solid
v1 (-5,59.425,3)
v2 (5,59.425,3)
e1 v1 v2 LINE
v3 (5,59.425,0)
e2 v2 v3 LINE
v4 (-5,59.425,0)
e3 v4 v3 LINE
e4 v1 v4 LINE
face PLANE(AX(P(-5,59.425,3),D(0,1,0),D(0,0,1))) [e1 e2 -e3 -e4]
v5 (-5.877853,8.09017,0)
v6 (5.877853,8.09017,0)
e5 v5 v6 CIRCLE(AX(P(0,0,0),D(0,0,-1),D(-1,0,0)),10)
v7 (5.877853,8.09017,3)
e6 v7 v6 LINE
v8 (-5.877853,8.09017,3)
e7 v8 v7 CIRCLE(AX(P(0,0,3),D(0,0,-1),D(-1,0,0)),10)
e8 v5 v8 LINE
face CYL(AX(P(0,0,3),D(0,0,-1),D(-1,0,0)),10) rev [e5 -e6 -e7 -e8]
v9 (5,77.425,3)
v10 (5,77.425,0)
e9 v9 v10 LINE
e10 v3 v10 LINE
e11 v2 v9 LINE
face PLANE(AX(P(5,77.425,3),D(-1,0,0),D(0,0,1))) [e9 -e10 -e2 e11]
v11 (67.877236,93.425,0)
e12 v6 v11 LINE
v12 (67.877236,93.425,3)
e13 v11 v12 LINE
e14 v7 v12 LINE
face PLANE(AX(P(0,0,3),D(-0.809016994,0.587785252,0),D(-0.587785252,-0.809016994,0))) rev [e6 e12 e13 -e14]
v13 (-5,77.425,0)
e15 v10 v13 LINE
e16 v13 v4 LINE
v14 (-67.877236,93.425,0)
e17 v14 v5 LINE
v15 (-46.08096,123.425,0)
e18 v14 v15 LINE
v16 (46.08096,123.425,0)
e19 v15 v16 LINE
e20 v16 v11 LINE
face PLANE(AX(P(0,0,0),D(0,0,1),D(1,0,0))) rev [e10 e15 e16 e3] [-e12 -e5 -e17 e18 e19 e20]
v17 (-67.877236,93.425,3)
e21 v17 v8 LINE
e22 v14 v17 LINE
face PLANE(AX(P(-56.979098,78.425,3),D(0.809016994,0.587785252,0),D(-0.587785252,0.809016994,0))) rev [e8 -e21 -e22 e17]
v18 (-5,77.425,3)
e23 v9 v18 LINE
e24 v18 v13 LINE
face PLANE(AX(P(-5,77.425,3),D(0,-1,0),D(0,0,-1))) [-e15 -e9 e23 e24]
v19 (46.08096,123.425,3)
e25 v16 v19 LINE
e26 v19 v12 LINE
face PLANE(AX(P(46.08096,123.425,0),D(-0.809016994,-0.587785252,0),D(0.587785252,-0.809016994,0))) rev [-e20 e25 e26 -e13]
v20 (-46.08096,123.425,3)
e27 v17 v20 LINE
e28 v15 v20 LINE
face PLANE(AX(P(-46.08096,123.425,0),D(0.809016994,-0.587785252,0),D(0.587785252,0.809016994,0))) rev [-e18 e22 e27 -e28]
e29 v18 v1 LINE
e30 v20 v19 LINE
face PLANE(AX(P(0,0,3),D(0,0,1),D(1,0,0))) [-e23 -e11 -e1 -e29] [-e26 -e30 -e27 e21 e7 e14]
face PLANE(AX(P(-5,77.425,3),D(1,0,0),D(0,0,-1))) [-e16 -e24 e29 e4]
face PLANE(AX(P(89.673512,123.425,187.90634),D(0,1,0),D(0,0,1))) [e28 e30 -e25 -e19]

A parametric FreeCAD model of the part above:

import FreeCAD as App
import Part
import Sketcher
from FreeCAD import Vector
Q = App.Units.Quantity


def add_polygon(sketch, points):
    """Adds a closed chain of lines whose ends are joined by coincident constraints."""
    first, n = sketch.GeometryCount, len(points)
    for a, b in zip(points, points[1:] + points[:1]):
        sketch.addGeometry(Part.LineSegment(App.Vector(*a, 0), App.Vector(*b, 0)), False)
    for i in range(n):
        sketch.addConstraint(Sketcher.Constraint("Coincident", first + i, 2, first + (i + 1) % n, 1))

doc = App.newDocument("Part")
params = doc.addObject("Spreadsheet::Sheet", "Params")
for row, (alias, value) in enumerate([
    ("sketch1_width", "10 mm"),
    ("sketch1_height", "18 mm"),
    ("pad1_length", "3 mm"),
    ("pad2_length", "3 mm"),
    ("sketch4_diameter", "20 mm"),
], start=1):
    params.set(f"A{row}", alias)
    params.set(f"B{row}", "=" + value)
    params.setAlias(f"B{row}", alias)

body = doc.addObject("PartDesign::Body", "Body")

sketch1 = body.newObject("Sketcher::SketchObject", "Sketch")
sketch1.AttachmentSupport = (doc.getObject("XY_Plane"), [""])
sketch1.MapMode = "FlatFace"
add_polygon(sketch1, [(0, 0), (56.979098, 78.425), (-56.979098, 78.425)])
add_polygon(sketch1, [(5, 59.425), (-5, 59.425), (-5, 77.425), (5, 77.425)])
sketch1.addConstraint([
    Sketcher.Constraint("Horizontal", 1),
    Sketcher.Constraint("Horizontal", 3),
    Sketcher.Constraint("Vertical", 4),
    Sketcher.Constraint("Horizontal", 5),
    Sketcher.Constraint("Vertical", 6),
    Sketcher.Constraint("Coincident", 2, 2, -1, 1),
    Sketcher.Constraint("Equal", 0, 2),
    Sketcher.Constraint("DistanceX", 3, 2, 3, 1, Q("10 mm")),
    Sketcher.Constraint("DistanceY", 4, 1, 4, 2, Q("18 mm")),
    Sketcher.Constraint("Angle", 0, Q("54 deg")),
    Sketcher.Constraint("DistanceX", 3, 2, -1, 1, Q("5 mm")),
    Sketcher.Constraint("DistanceY", 3, 2, 1, 2, Q("19 mm")),
    Sketcher.Constraint("DistanceY", -1, 1, 0, 2, Q("78.425 mm")),
])
sketch1.setExpression("Constraints[14]", "Params.sketch1_width")
sketch1.setExpression("Constraints[15]", "Params.sketch1_height")
pad1 = body.newObject("PartDesign::Pad", "Pad")
pad1.Profile = sketch1
pad1.setExpression("Length", "Params.pad1_length")

sketch2 = body.newObject("Sketcher::SketchObject", "Sketch001")
sketch2.AttachmentSupport = (doc.getObject("XY_Plane"), [""])
sketch2.MapMode = "FlatFace"
add_polygon(sketch2, [(89.673512, 123.425), (56.979098, 78.425), (-56.979098, 78.425), (-89.673512, 123.425)])
sketch2.addConstraint([
    Sketcher.Constraint("Horizontal", 1),
    Sketcher.Constraint("Horizontal", 3),
    Sketcher.Constraint("Equal", 0, 2),
    Sketcher.Constraint("Angle", 0, Q("-126 deg")),
    Sketcher.Constraint("DistanceY", 1, 2, 2, 2, Q("45 mm")),
    Sketcher.Constraint("DistanceY", -1, 1, 0, 2, Q("78.425 mm")),
    Sketcher.Constraint("DistanceX", 1, 2, 1, 1, Q("113.958196 mm")),
    Sketcher.Constraint("DistanceX", 2, 2, -1, 1, Q("89.673512 mm")),
])
pad2 = body.newObject("PartDesign::Pad", "Pad001")
pad2.Profile = sketch2
pad2.setExpression("Length", "Params.pad2_length")

sketch3 = body.newObject("Sketcher::SketchObject", "Sketch002")
sketch3.AttachmentSupport = (doc.getObject("XY_Plane"), [""])
sketch3.MapMode = "FlatFace"
sketch3.AttachmentOffset = App.Placement(Vector(0, 0, 3), App.Rotation())
add_polygon(sketch3, [(-46.08096, 123.425), (-89.673512, 123.425), (-67.877236, 93.425)])
add_polygon(sketch3, [(89.673512, 123.425), (46.08096, 123.425), (67.877236, 93.425)])
sketch3.addConstraint([
    Sketcher.Constraint("Horizontal", 0),
    Sketcher.Constraint("Horizontal", 3),
    Sketcher.Constraint("Symmetric", 2, 2, 3, 2, -2),
    Sketcher.Constraint("Symmetric", 1, 2, 4, 2, -2),
    Sketcher.Constraint("Parallel", 1, 4),
    Sketcher.Constraint("Parallel", 2, 5),
    Sketcher.Constraint("Angle", 1, Q("-54 deg")),
    Sketcher.Constraint("DistanceY", 1, 2, 0, 2, Q("30 mm")),
    Sketcher.Constraint("DistanceY", -1, 1, 0, 2, Q("123.425 mm")),
    Sketcher.Constraint("DistanceX", 0, 2, -1, 1, Q("89.673512 mm")),
])
pocket1 = body.newObject("PartDesign::Pocket", "Pocket")
pocket1.Profile = sketch3
pocket1.Type = "ThroughAll"

sketch4 = body.newObject("Sketcher::SketchObject", "Sketch003")
sketch4.AttachmentSupport = (doc.getObject("XY_Plane"), [""])
sketch4.MapMode = "FlatFace"
sketch4.addGeometry(Part.Circle(Vector(0, 0, 0), Vector(0, 0, 1), 10), False)
sketch4.addConstraint([
    Sketcher.Constraint("Coincident", 0, 3, -1, 1),
    Sketcher.Constraint("Diameter", 0, Q("20 mm")),
])
sketch4.setExpression("Constraints[1]", "Params.sketch4_diameter")
pocket2 = body.newObject("PartDesign::Pocket", "Pocket001")
pocket2.Profile = sketch4
pocket2.Type = "ThroughAll"
pocket2.Reversed = True

doc.recompute()
